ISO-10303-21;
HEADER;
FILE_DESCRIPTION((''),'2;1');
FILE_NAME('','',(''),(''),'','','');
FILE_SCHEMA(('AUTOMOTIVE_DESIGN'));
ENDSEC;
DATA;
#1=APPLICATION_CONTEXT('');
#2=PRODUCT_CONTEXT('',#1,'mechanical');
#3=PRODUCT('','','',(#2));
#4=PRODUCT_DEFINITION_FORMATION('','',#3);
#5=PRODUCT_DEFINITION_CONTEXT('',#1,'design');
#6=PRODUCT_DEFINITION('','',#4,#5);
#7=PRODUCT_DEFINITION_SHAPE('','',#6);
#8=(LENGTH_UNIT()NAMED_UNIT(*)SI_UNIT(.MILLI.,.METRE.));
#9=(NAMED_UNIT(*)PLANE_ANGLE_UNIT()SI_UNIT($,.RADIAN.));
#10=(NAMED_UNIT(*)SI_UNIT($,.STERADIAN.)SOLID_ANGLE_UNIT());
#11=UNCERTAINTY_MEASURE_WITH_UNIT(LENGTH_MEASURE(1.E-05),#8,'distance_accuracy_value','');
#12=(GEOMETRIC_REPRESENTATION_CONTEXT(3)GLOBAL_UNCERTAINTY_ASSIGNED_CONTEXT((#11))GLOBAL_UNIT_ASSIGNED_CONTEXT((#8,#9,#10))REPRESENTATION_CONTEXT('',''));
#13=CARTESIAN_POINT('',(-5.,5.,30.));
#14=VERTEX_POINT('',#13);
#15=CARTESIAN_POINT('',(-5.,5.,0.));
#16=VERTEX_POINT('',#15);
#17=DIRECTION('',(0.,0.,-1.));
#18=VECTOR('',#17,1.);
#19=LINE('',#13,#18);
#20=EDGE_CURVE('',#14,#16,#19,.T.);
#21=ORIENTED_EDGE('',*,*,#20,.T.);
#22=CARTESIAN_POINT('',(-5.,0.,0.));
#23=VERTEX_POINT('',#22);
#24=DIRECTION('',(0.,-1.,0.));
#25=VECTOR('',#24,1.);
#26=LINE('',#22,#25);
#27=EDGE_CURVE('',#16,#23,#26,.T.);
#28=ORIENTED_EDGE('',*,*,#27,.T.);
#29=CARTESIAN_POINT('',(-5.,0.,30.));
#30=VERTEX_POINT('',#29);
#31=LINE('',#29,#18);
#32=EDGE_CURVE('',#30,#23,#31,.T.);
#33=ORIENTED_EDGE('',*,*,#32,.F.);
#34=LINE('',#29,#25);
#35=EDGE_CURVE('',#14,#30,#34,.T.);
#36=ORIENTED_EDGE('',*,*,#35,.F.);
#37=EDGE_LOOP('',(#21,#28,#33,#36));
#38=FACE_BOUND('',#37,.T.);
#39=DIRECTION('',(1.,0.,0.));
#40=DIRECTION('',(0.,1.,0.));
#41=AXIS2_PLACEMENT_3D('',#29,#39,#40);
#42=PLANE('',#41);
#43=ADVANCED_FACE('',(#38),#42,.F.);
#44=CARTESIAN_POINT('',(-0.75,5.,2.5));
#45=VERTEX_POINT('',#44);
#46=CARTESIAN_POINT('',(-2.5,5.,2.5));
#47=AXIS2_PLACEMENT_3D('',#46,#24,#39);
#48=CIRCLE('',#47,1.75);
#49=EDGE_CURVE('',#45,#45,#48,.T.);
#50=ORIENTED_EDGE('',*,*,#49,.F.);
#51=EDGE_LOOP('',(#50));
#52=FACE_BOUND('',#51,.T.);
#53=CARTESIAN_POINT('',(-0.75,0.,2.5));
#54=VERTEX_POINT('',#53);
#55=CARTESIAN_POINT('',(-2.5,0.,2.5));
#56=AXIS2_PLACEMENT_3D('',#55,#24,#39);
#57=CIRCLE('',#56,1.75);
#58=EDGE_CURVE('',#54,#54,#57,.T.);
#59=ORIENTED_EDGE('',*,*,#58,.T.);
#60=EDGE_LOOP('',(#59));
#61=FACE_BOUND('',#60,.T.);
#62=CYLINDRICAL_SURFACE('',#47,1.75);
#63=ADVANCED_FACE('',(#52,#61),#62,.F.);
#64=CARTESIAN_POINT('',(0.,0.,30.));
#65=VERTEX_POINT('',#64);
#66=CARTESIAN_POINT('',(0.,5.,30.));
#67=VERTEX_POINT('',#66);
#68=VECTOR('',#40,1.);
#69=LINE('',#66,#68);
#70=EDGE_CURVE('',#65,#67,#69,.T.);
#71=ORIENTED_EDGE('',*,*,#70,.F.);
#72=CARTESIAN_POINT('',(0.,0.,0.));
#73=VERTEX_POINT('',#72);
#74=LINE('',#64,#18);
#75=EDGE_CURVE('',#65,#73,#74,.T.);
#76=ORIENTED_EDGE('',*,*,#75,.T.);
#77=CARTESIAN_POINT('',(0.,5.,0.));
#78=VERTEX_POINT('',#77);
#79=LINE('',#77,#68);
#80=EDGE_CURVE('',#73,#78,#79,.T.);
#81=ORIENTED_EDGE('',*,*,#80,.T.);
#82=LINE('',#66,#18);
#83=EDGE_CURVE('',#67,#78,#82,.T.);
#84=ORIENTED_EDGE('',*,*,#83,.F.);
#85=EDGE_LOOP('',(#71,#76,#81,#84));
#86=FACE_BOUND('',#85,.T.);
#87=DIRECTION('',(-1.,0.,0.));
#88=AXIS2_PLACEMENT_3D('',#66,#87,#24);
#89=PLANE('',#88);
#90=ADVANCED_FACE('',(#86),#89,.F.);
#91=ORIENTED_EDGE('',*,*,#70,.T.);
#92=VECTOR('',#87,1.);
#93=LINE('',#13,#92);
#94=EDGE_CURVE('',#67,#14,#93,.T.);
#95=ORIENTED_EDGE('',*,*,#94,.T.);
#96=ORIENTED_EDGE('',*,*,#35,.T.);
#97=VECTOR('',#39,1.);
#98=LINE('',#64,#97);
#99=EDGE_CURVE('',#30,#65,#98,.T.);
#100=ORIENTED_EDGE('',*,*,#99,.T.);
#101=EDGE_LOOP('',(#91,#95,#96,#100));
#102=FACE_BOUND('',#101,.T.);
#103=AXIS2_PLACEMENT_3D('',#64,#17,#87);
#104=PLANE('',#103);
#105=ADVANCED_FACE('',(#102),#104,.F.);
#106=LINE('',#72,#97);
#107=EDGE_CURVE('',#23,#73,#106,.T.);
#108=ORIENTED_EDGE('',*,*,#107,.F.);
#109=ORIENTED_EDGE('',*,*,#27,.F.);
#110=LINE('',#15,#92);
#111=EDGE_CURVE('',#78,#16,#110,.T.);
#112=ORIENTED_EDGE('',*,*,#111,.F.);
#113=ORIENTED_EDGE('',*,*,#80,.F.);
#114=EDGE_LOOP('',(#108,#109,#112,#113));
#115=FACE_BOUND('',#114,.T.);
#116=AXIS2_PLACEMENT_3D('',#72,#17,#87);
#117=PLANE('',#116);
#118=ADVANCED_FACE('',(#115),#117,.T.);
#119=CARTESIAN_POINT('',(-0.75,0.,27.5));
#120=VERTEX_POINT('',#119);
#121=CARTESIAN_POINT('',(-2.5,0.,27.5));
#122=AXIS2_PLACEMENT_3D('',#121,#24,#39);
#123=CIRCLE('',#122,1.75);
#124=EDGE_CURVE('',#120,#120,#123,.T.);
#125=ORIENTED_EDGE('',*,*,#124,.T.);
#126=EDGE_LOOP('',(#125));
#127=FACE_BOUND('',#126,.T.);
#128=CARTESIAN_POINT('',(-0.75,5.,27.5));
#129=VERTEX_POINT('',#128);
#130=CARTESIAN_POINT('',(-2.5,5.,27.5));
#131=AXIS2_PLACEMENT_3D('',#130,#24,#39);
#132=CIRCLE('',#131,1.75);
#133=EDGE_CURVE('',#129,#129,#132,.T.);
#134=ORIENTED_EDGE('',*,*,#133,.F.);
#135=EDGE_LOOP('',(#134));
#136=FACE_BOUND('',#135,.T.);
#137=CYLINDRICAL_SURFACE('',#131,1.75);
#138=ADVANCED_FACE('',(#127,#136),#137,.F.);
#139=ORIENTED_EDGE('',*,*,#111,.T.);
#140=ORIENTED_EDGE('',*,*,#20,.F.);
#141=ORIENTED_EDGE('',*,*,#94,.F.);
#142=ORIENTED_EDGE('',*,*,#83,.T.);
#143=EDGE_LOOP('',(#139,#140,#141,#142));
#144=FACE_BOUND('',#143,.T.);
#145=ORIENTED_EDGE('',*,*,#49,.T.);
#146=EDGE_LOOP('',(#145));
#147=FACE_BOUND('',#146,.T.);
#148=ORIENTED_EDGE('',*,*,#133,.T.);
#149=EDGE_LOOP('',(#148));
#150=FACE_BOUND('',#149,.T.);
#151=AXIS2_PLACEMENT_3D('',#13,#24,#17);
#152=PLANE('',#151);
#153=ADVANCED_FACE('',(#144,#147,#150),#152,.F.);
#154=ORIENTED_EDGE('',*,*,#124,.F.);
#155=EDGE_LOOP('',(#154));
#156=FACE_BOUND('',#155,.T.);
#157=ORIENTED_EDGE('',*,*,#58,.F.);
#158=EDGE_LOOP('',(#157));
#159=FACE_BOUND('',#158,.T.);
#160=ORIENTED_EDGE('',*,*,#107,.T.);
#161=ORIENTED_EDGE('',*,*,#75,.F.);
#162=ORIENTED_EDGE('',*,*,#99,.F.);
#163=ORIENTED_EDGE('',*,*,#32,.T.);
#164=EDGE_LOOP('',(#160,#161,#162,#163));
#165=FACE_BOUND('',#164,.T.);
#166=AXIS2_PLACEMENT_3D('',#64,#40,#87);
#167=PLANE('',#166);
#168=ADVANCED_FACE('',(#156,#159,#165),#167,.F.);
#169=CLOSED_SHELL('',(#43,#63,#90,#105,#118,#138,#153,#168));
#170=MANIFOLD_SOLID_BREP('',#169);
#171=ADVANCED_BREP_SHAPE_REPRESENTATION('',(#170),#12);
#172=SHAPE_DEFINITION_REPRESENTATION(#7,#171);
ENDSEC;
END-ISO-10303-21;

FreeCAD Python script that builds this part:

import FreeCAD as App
import Part
import Sketcher

V = App.Vector


def add_polygon(sketch, points):
    """Adds a closed chain of lines whose ends are joined by coincident constraints."""
    first, n = sketch.GeometryCount, len(points)
    for a, b in zip(points, points[1:] + points[:1]):
        sketch.addGeometry(Part.LineSegment(App.Vector(*a, 0), App.Vector(*b, 0)), False)
    for i in range(n):
        sketch.addConstraint(Sketcher.Constraint("Coincident", first + i, 2, first + (i + 1) % n, 1))

doc = App.newDocument("Part")
params = doc.addObject("Spreadsheet::Sheet", "Params")
for row, (alias, value) in enumerate([
    ("sketch1_width", "5 mm"),
    ("pad1_length", "30 mm"),
    ("sketch2_diameter", "3.5 mm"),
], start=1):
    params.set(f"A{row}", alias)
    params.set(f"B{row}", "=" + value)
    params.setAlias(f"B{row}", alias)

body = doc.addObject("PartDesign::Body", "Body")

# Sketch on XY plane
sketch1 = doc.addObject("Sketcher::SketchObject", "Sketch")
body.addObject(sketch1)
sketch1.AttachmentSupport = (doc.XY_Plane, [""])
sketch1.MapMode = "FlatFace"
add_polygon(sketch1, [(-5, 5), (-5, 0), (0, 0), (0, 5)])  # lines 0-3
sketch1.addConstraint(Sketcher.Constraint("Vertical", 0))
sketch1.addConstraint(Sketcher.Constraint("Horizontal", 1))
sketch1.addConstraint(Sketcher.Constraint("Vertical", 2))
sketch1.addConstraint(Sketcher.Constraint("Horizontal", 3))
sketch1.addConstraint(Sketcher.Constraint("Coincident", 1, 2, -1, 1))
sketch1.addConstraint(Sketcher.Constraint("Equal", 3, 0))
sketch1.addConstraint(Sketcher.Constraint("DistanceX", 1, 1, 1, 2, 5.0))
sketch1.setExpression("Constraints[10]", "Params.sketch1_width")
pad1 = doc.addObject("PartDesign::Pad", "Pad")
body.addObject(pad1)
pad1.Profile = sketch1
pad1.setExpression("Length", "Params.pad1_length")

# Sketch on XZ plane
sketch2 = doc.addObject("Sketcher::SketchObject", "Sketch001")
body.addObject(sketch2)
sketch2.AttachmentSupport = (doc.XZ_Plane, [""])
sketch2.MapMode = "FlatFace"
sketch2.addGeometry(Part.Circle(V(-2.5, 27.5, 0), V(0, 0, 1), 1.8), False)
sketch2.addGeometry(Part.Circle(V(-2.5, 2.5, 0), V(0, 0, 1), 1.8), False)
sketch2.addConstraint(Sketcher.Constraint("Equal", 0, 1))
sketch2.addConstraint(Sketcher.Constraint("Vertical", 0, 3, 1, 3))
sketch2.addConstraint(Sketcher.Constraint("Diameter", 0, 3.5))
sketch2.addConstraint(Sketcher.Constraint("DistanceY", 1, 3, 0, 3, 25.0))
sketch2.addConstraint(Sketcher.Constraint("DistanceX", 0, 3, -1, 1, 2.5))
sketch2.addConstraint(Sketcher.Constraint("DistanceY", -1, 1, 0, 3, 27.5))
sketch2.setExpression("Constraints[2]", "Params.sketch2_diameter")
pocket1 = doc.addObject("PartDesign::Pocket", "Pocket")
body.addObject(pocket1)
pocket1.Profile = sketch2
pocket1.Type = "ThroughAll"

doc.recompute()
